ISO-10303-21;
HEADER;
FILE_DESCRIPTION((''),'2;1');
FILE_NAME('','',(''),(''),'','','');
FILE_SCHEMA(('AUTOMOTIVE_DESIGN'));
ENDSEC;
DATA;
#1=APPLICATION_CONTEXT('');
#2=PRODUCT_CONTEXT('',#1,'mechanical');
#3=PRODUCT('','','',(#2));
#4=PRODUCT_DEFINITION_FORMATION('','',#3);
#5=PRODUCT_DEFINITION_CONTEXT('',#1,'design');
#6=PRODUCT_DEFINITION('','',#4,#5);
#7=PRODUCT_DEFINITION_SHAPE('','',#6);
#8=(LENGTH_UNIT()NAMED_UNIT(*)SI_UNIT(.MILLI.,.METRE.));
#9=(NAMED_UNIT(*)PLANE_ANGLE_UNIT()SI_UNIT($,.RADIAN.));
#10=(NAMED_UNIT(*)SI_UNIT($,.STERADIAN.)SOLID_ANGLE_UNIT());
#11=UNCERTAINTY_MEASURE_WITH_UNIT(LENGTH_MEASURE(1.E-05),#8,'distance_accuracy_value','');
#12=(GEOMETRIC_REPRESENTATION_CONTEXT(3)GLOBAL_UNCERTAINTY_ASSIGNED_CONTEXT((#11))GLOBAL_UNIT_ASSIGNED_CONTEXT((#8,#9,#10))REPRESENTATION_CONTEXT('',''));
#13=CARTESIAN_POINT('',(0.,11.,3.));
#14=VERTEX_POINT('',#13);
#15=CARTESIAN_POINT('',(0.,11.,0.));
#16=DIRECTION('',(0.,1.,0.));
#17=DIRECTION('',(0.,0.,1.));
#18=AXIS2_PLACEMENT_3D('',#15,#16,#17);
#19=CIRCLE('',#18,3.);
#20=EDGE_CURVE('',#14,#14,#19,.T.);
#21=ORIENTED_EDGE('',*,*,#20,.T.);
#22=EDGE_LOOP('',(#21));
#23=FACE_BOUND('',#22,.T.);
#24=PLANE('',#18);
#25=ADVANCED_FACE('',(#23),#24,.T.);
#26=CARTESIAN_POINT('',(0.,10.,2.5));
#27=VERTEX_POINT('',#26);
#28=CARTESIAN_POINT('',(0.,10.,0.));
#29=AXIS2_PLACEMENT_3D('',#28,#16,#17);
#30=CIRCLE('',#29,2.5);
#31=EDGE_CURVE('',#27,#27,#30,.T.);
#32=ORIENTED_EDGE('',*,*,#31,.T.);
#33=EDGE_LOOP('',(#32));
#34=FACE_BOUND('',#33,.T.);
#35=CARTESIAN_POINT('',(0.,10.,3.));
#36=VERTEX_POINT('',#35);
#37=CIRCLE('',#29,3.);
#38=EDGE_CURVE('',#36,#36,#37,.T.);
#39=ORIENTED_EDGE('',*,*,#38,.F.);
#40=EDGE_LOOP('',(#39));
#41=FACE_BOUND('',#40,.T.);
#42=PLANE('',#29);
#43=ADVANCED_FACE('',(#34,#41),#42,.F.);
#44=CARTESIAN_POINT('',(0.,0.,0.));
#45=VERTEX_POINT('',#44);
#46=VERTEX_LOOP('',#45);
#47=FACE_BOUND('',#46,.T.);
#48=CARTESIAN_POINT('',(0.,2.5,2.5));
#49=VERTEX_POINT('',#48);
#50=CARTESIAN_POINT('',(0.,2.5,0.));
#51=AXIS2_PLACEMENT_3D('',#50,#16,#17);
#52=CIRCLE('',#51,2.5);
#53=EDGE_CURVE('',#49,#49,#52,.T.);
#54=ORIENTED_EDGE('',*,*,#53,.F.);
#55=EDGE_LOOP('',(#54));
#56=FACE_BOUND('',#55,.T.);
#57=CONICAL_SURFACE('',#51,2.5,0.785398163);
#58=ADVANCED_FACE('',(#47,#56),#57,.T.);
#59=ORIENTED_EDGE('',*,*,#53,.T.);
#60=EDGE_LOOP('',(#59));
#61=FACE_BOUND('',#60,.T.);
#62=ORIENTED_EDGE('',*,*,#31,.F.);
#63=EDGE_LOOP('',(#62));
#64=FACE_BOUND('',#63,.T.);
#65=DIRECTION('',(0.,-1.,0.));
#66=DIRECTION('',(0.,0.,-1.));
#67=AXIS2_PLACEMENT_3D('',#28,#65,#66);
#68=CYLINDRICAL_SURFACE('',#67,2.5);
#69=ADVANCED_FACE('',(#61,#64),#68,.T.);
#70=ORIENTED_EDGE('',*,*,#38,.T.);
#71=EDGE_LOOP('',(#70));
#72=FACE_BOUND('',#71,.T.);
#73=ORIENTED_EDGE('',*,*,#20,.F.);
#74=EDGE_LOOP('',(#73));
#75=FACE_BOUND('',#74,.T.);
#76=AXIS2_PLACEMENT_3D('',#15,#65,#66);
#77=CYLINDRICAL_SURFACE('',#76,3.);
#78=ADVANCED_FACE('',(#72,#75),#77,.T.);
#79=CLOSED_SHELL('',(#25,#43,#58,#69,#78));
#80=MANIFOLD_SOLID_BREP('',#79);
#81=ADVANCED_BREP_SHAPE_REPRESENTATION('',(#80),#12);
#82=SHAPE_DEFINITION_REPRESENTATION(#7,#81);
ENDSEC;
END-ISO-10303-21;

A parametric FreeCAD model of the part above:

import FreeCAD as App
import Part
import Sketcher
from FreeCAD import Vector


def edges_at(feature, points):
    """Names of the edges that pass closest to the given points."""
    edges = feature.Shape.Edges
    near = lambda p: min(range(len(edges)), key=lambda i: edges[i].distToShape(Part.Vertex(*p))[0])
    return sorted({f"Edge{near(p) + 1}" for p in points})

doc = App.newDocument("Part")
body = doc.addObject("PartDesign::Body", "Body")

sketch1 = doc.addObject("Sketcher::SketchObject", "Sketch")
body.addObject(sketch1)
sketch1.AttachmentSupport = (doc.XZ_Plane, [""])
sketch1.MapMode = "FlatFace"
sketch1.addGeometry(Part.Circle(Vector(0, 0, 0), Vector(0, 0, 1), 2.5), False)
sketch1.addConstraint([
    Sketcher.Constraint("Coincident", 0, 3, -1, 1),
    Sketcher.Constraint("Diameter", 0, 5.0),
])
pad1 = doc.addObject("PartDesign::Pad", "Pad")
body.addObject(pad1)
pad1.Profile = sketch1
pad1.Length = 10
pad1.Reversed = True
doc.recompute()

chamfer = doc.addObject("PartDesign::Chamfer", "Chamfer")
body.addObject(chamfer)
chamfer.Base = (pad1, edges_at(pad1, [(0, 0, -2.5)]))
chamfer.Size = 2.5

sketch2 = doc.addObject("Sketcher::SketchObject", "Sketch001")
body.addObject(sketch2)
sketch2.AttachmentSupport = (doc.XZ_Plane, [""])
sketch2.MapMode = "FlatFace"
sketch2.AttachmentOffset = App.Placement(Vector(0, 0, -10), App.Rotation())
sketch2.addGeometry(Part.Circle(Vector(0, 0, 0), Vector(0, 0, 1), 3), False)
sketch2.addConstraint([
    Sketcher.Constraint("Coincident", 0, 3, -1, 1),
    Sketcher.Constraint("Diameter", 0, 6.0),
])
pad2 = doc.addObject("PartDesign::Pad", "Pad001")
body.addObject(pad2)
pad2.Profile = sketch2
pad2.Length = 1
pad2.Reversed = True

doc.recompute()
